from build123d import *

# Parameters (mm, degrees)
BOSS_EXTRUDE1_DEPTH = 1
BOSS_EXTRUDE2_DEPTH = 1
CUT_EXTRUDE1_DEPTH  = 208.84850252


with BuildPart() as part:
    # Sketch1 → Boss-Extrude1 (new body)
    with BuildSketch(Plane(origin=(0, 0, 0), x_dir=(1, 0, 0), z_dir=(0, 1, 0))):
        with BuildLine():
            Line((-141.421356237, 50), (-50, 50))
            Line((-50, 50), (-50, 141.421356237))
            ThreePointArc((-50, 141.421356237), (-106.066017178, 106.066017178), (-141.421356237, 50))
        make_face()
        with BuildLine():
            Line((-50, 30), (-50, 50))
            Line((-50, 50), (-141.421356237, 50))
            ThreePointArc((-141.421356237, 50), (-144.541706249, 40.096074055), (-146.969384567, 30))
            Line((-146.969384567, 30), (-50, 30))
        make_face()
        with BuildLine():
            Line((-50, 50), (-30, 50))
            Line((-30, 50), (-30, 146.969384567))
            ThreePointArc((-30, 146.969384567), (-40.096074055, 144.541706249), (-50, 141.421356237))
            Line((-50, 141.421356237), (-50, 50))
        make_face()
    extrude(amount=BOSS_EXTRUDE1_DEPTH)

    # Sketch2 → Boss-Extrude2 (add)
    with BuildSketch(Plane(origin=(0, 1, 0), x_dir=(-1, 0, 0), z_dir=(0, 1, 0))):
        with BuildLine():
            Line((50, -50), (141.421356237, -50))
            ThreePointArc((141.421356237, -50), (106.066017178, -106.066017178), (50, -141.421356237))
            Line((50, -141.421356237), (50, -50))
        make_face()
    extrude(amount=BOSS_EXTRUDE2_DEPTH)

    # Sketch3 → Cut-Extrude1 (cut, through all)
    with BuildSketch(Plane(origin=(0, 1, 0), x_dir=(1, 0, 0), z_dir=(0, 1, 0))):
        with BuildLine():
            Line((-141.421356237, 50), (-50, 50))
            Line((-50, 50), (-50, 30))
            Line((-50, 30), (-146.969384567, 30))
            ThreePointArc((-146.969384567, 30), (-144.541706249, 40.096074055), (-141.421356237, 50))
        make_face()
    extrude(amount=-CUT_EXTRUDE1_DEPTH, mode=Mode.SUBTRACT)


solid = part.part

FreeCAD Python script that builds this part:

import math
import FreeCAD as App
import Part
import Sketcher

V = App.Vector

doc = App.newDocument("Part")
params = doc.addObject("Spreadsheet::Sheet", "Params")
for row, (alias, value) in enumerate([
    ("sketch1_radius", "150 mm"),
    ("sketch1_width", "20 mm"),
    ("pad1_length", "1 mm"),
    ("sketch2_radius", "150 mm"),
    ("pad2_length", "1 mm"),
    ("sketch3_radius", "150 mm"),
    ("sketch3_height", "20 mm"),
], start=1):
    params.set(f"A{row}", alias)
    params.set(f"B{row}", "=" + value)
    params.setAlias(f"B{row}", alias)

body = doc.addObject("PartDesign::Body", "Body")

# Sketch on XZ plane
sketch1 = body.newObject("Sketcher::SketchObject", "Sketch")
sketch1.AttachmentSupport = (doc.getObject("XZ_Plane"), [""])
sketch1.MapMode = "FlatFace"
sketch1.addGeometry(Part.ArcOfCircle(Part.Circle(V(0, 0, 0), V(0, 0, 1), 150), math.radians(-161), math.radians(-109)), False)
sketch1.addGeometry(Part.ArcOfCircle(Part.Circle(V(0, 0, 0), V(0, 0, 1), 150), math.radians(-168.46), math.radians(-160.53)), False)
sketch1.addGeometry(Part.LineSegment(V(-147, -30, 0), V(-50, -30, 0)), False)
sketch1.addGeometry(Part.LineSegment(V(-50, -30, 0), V(-50, -50, 0)), False)
sketch1.addGeometry(Part.LineSegment(V(-50, -50, 0), V(-30, -50, 0)), False)
sketch1.addGeometry(Part.LineSegment(V(-30, -50, 0), V(-30, -147, 0)), False)
sketch1.addGeometry(Part.ArcOfCircle(Part.Circle(V(0, 0, 0), V(0, 0, 1), 150), math.radians(-109.47), math.radians(-101.54)), False)
sketch1.addConstraint(Sketcher.Constraint("Tangent", 0, 1, 1, 2))
sketch1.addConstraint(Sketcher.Constraint("Coincident", 1, 1, 2, 1))
sketch1.addConstraint(Sketcher.Constraint("Coincident", 2, 2, 3, 1))
sketch1.addConstraint(Sketcher.Constraint("Coincident", 3, 2, 4, 1))
sketch1.addConstraint(Sketcher.Constraint("Coincident", 4, 2, 5, 1))
sketch1.addConstraint(Sketcher.Constraint("Coincident", 5, 2, 6, 2))
sketch1.addConstraint(Sketcher.Constraint("Tangent", 6, 1, 0, 2))
sketch1.addConstraint(Sketcher.Constraint("Horizontal", 2))
sketch1.addConstraint(Sketcher.Constraint("Vertical", 3))
sketch1.addConstraint(Sketcher.Constraint("Horizontal", 4))
sketch1.addConstraint(Sketcher.Constraint("Vertical", 5))
sketch1.addConstraint(Sketcher.Constraint("Coincident", 0, 3, -1, 1))
sketch1.addConstraint(Sketcher.Constraint("Equal", 0, 1))
sketch1.addConstraint(Sketcher.Constraint("Equal", 1, 6))
sketch1.addConstraint(Sketcher.Constraint("Horizontal", 0, 1, 3, 2))
sketch1.addConstraint(Sketcher.Constraint("Vertical", 3, 2, 6, 1))
sketch1.addConstraint(Sketcher.Constraint("Equal", 4, 3))
sketch1.addConstraint(Sketcher.Constraint("Equal", 2, 5))
sketch1.addConstraint(Sketcher.Constraint("Radius", 0, 150.0))
sketch1.addConstraint(Sketcher.Constraint("DistanceX", 4, 1, 4, 2, 20.0))
sketch1.addConstraint(Sketcher.Constraint("DistanceX", 2, 2, -1, 1, 50.0))
sketch1.setExpression("Constraints[18]", "Params.sketch1_radius")
sketch1.setExpression("Constraints[19]", "Params.sketch1_width")
pad1 = body.newObject("PartDesign::Pad", "Pad")
pad1.Profile = sketch1
pad1.setExpression("Length", "Params.pad1_length")
pad1.Reversed = True

# Sketch on XZ plane
sketch2 = body.newObject("Sketcher::SketchObject", "Sketch001")
sketch2.AttachmentSupport = (doc.getObject("XZ_Plane"), [""])
sketch2.MapMode = "FlatFace"
sketch2.AttachmentOffset = App.Placement(V(0, 0, -1), App.Rotation())
sketch2.addGeometry(Part.LineSegment(V(-141, -50, 0), V(-50, -50, 0)), False)
sketch2.addGeometry(Part.LineSegment(V(-50, -50, 0), V(-50, -141, 0)), False)
sketch2.addGeometry(Part.ArcOfCircle(Part.Circle(V(0, 0, 0), V(0, 0, 1), 150), math.radians(-161), math.radians(-109)), False)
sketch2.addConstraint(Sketcher.Constraint("Coincident", 0, 2, 1, 1))
sketch2.addConstraint(Sketcher.Constraint("Coincident", 1, 2, 2, 2))
sketch2.addConstraint(Sketcher.Constraint("Coincident", 2, 1, 0, 1))
sketch2.addConstraint(Sketcher.Constraint("Horizontal", 0))
sketch2.addConstraint(Sketcher.Constraint("Vertical", 1))
sketch2.addConstraint(Sketcher.Constraint("Coincident", 2, 3, -1, 1))
sketch2.addConstraint(Sketcher.Constraint("Equal", 0, 1))
sketch2.addConstraint(Sketcher.Constraint("Radius", 2, 150.0))
sketch2.addConstraint(Sketcher.Constraint("DistanceX", 0, 2, -1, 1, 50.0))
sketch2.setExpression("Constraints[7]", "Params.sketch2_radius")
pad2 = body.newObject("PartDesign::Pad", "Pad001")
pad2.Profile = sketch2
pad2.setExpression("Length", "Params.pad2_length")
pad2.Reversed = True

# Sketch on XZ plane
sketch3 = body.newObject("Sketcher::SketchObject", "Sketch002")
sketch3.AttachmentSupport = (doc.getObject("XZ_Plane"), [""])
sketch3.MapMode = "FlatFace"
sketch3.AttachmentOffset = App.Placement(V(0, 0, -1), App.Rotation())
sketch3.addGeometry(Part.LineSegment(V(-50, -50, 0), V(-141, -50, 0)), False)
sketch3.addGeometry(Part.ArcOfCircle(Part.Circle(V(0, 0, 0), V(0, 0, 1), 150), math.radians(-168.46), math.radians(-160.53)), False)
sketch3.addGeometry(Part.LineSegment(V(-147, -30, 0), V(-50, -30, 0)), False)
sketch3.addGeometry(Part.LineSegment(V(-50, -30, 0), V(-50, -50, 0)), False)
sketch3.addConstraint(Sketcher.Constraint("Coincident", 0, 2, 1, 2))
sketch3.addConstraint(Sketcher.Constraint("Coincident", 1, 1, 2, 1))
sketch3.addConstraint(Sketcher.Constraint("Coincident", 2, 2, 3, 1))
sketch3.addConstraint(Sketcher.Constraint("Coincident", 3, 2, 0, 1))
sketch3.addConstraint(Sketcher.Constraint("Horizontal", 0))
sketch3.addConstraint(Sketcher.Constraint("Horizontal", 2))
sketch3.addConstraint(Sketcher.Constraint("Vertical", 3))
sketch3.addConstraint(Sketcher.Constraint("Coincident", 1, 3, -1, 1))
sketch3.addConstraint(Sketcher.Constraint("Radius", 1, 150.0))
sketch3.addConstraint(Sketcher.Constraint("DistanceY", 3, 2, 3, 1, 20.0))
sketch3.addConstraint(Sketcher.Constraint("DistanceY", 0, 2, -1, 1, 50.0))
sketch3.addConstraint(Sketcher.Constraint("DistanceX", 2, 2, -1, 1, 50.0))
sketch3.setExpression("Constraints[8]", "Params.sketch3_radius")
sketch3.setExpression("Constraints[9]", "Params.sketch3_height")
pocket1 = body.newObject("PartDesign::Pocket", "Pocket")
pocket1.Profile = sketch3
pocket1.Type = "ThroughAll"
pocket1.Reversed = True

doc.recompute()
